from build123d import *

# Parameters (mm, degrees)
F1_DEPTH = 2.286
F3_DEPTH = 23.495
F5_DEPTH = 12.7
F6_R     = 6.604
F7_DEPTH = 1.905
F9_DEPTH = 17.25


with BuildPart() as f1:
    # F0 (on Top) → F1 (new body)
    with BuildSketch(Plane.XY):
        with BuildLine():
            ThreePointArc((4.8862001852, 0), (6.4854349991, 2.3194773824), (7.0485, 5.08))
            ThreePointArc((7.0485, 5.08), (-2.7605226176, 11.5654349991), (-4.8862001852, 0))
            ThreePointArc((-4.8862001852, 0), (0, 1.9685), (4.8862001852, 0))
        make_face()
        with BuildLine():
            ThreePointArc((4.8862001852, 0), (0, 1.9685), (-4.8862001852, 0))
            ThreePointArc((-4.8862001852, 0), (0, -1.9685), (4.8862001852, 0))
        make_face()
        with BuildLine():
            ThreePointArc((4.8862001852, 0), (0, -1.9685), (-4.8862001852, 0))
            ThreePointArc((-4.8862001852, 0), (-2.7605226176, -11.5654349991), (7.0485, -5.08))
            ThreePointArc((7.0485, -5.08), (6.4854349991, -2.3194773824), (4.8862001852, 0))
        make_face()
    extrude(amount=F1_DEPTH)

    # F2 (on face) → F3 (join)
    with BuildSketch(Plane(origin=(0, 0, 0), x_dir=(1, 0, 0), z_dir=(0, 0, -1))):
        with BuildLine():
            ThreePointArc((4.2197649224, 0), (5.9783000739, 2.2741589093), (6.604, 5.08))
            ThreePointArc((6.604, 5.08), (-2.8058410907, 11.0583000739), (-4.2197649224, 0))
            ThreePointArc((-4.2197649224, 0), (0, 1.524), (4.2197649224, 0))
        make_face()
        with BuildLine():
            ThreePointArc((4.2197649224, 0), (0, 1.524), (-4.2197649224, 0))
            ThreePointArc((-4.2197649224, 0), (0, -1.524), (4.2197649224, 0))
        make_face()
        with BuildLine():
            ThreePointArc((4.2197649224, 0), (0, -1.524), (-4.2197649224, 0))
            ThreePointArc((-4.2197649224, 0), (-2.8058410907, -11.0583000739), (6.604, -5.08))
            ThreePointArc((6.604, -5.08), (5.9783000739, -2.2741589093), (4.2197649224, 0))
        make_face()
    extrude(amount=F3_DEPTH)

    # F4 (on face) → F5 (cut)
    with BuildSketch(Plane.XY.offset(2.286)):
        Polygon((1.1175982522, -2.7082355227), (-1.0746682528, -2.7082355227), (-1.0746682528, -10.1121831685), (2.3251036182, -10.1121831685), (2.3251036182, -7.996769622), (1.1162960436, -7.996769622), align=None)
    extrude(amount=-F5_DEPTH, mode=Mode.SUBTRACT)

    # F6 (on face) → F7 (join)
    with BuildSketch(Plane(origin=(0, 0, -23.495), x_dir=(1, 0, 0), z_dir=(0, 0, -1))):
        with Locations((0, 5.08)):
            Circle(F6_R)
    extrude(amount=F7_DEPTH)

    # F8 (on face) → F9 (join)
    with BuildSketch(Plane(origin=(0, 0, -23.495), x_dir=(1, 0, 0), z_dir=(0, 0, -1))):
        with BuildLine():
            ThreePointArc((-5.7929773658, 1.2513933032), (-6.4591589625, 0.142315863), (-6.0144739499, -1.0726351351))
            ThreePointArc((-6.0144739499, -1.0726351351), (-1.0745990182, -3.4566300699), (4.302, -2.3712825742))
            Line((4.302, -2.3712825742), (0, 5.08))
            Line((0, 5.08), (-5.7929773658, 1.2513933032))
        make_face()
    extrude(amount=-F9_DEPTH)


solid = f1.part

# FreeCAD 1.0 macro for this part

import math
import FreeCAD as App
import Part
import Sketcher
from FreeCAD import Vector
Q = App.Units.Quantity


def add_polygon(sketch, points):
    """Adds a closed chain of lines whose ends are joined by coincident constraints."""
    first, n = sketch.GeometryCount, len(points)
    for a, b in zip(points, points[1:] + points[:1]):
        sketch.addGeometry(Part.LineSegment(App.Vector(*a, 0), App.Vector(*b, 0)), False)
    for i in range(n):
        sketch.addConstraint(Sketcher.Constraint("Coincident", first + i, 2, first + (i + 1) % n, 1))

doc = App.newDocument("Part")
body = doc.addObject("PartDesign::Body", "Body")

# Sketch on XY plane
sketch1 = body.newObject("Sketcher::SketchObject", "Sketch")
sketch1.AttachmentSupport = (doc.getObject("XY_Plane"), [""])
sketch1.MapMode = "FlatFace"
sketch1.addGeometry([
    Part.ArcOfCircle(Part.Circle(Vector(0, 5, 0), Vector(0, 0, 1), 7), math.radians(-46), math.radians(0)),
    Part.ArcOfCircle(Part.Circle(Vector(0, 5, 0), Vector(0, 0, 1), 7), math.radians(0), math.radians(226)),
    Part.ArcOfCircle(Part.Circle(Vector(0, -5, 0), Vector(0, 0, 1), 7), math.radians(134), math.radians(360)),
    Part.ArcOfCircle(Part.Circle(Vector(0, -5, 0), Vector(0, 0, 1), 7), math.radians(0), math.radians(46)),
], False)
sketch1.addConstraint([
    Sketcher.Constraint("Tangent", 0, 2, 1, 1),
    Sketcher.Constraint("Coincident", 1, 2, 2, 1),
    Sketcher.Constraint("Tangent", 2, 2, 3, 1),
    Sketcher.Constraint("Coincident", 3, 2, 0, 1),
    Sketcher.Constraint("Equal", 0, 1),
    Sketcher.Constraint("Equal", 1, 2),
    Sketcher.Constraint("Equal", 2, 3),
    Sketcher.Constraint("Symmetric", 0, 3, 2, 3, -1, 1),
    Sketcher.Constraint("Symmetric", 0, 2, 2, 2, -1),
    Sketcher.Constraint("Horizontal", 1, 3, 0, 2),
    Sketcher.Constraint("DistanceY", -1, 1, 0, 3, Q("0.2 in")),
    Sketcher.Constraint("Radius", 0, Q("0.2775 in")),
])
pad1 = body.newObject("PartDesign::Pad", "Pad")
pad1.Profile = sketch1
pad1.Length = Q("0.09 in")

# Sketch on XY plane
sketch2 = body.newObject("Sketcher::SketchObject", "Sketch001")
sketch2.AttachmentSupport = (doc.getObject("XY_Plane"), [""])
sketch2.MapMode = "FlatFace"
sketch2.addGeometry([
    Part.ArcOfCircle(Part.Circle(Vector(0, -5, 0), Vector(0, 0, 1), 7), math.radians(0), math.radians(50)),
    Part.ArcOfCircle(Part.Circle(Vector(0, -5, 0), Vector(0, 0, 1), 7), math.radians(130), math.radians(360)),
    Part.ArcOfCircle(Part.Circle(Vector(0, 5, 0), Vector(0, 0, 1), 7), math.radians(0), math.radians(230)),
    Part.ArcOfCircle(Part.Circle(Vector(0, 5, 0), Vector(0, 0, 1), 7), math.radians(-50), math.radians(0)),
], False)
sketch2.addConstraint([
    Sketcher.Constraint("Tangent", 0, 1, 1, 2),
    Sketcher.Constraint("Coincident", 1, 1, 2, 2),
    Sketcher.Constraint("Tangent", 2, 1, 3, 2),
    Sketcher.Constraint("Coincident", 3, 1, 0, 2),
    Sketcher.Constraint("Equal", 0, 1),
    Sketcher.Constraint("Equal", 1, 2),
    Sketcher.Constraint("Equal", 2, 3),
    Sketcher.Constraint("Symmetric", 0, 3, 2, 3, -1, 1),
    Sketcher.Constraint("Symmetric", 0, 1, 2, 1, -1),
    Sketcher.Constraint("Horizontal", 1, 3, 0, 1),
    Sketcher.Constraint("Radius", 0, Q("0.26 in")),
    Sketcher.Constraint("DistanceY", 0, 3, -1, 1, Q("0.2 in")),
])
pad2 = body.newObject("PartDesign::Pad", "Pad001")
pad2.Profile = sketch2
pad2.Length = Q("0.925 in")
pad2.Reversed = True

# Sketch on XY plane
sketch3 = body.newObject("Sketcher::SketchObject", "Sketch002")
sketch3.AttachmentSupport = (doc.getObject("XY_Plane"), [""])
sketch3.MapMode = "FlatFace"
sketch3.AttachmentOffset = App.Placement(Vector(0, 0, 0.09 * 25.4), App.Rotation())
add_polygon(sketch3, [(1.1, -2.7), (-1.1, -2.7), (-1.1, -10.1), (2.3, -10.1), (2.3, -8), (1.1, -8)])  # lines 0-5
sketch3.addConstraint([
    Sketcher.Constraint("Horizontal", 0),
    Sketcher.Constraint("Vertical", 1),
    Sketcher.Constraint("Horizontal", 2),
    Sketcher.Constraint("Vertical", 3),
    Sketcher.Constraint("Horizontal", 4),
    Sketcher.Constraint("DistanceX", -1, 1, 5, 2, Q("0.0439999 in")),
    Sketcher.Constraint("DistanceX", 2, 1, 2, 2, 3.399772),
    Sketcher.Constraint("DistanceX", 0, 2, 0, 1, 2.192267),
    Sketcher.Constraint("DistanceX", 4, 2, 4, 1, 1.208808),
    Sketcher.Constraint("DistanceY", 1, 2, 1, 1, 7.403948),
    Sketcher.Constraint("DistanceY", 3, 1, 3, 2, 2.115414),
    Sketcher.Constraint("DistanceY", 3, 2, -1, 1, 7.99677),
])
pocket1 = body.newObject("PartDesign::Pocket", "Pocket")
pocket1.Profile = sketch3
pocket1.Length = Q("0.5 in")

# Sketch on XY plane
sketch4 = body.newObject("Sketcher::SketchObject", "Sketch003")
sketch4.AttachmentSupport = (doc.getObject("XY_Plane"), [""])
sketch4.MapMode = "FlatFace"
sketch4.AttachmentOffset = App.Placement(Vector(0, 0, -0.925 * 25.4), App.Rotation())
sketch4.addGeometry(Part.Circle(Vector(0, -5, 0), Vector(0, 0, 1), 7), False)
sketch4.addConstraint([
    Sketcher.Constraint("PointOnObject", 0, 3, -2),
    Sketcher.Constraint("Diameter", 0, Q("0.52 in")),
    Sketcher.Constraint("DistanceY", 0, 3, -1, 1, Q("0.2 in")),
])
pad3 = body.newObject("PartDesign::Pad", "Pad002")
pad3.Profile = sketch4
pad3.Length = Q("0.075 in")
pad3.Reversed = True

# Sketch on XY plane
sketch5 = body.newObject("Sketcher::SketchObject", "Sketch004")
sketch5.AttachmentSupport = (doc.getObject("XY_Plane"), [""])
sketch5.MapMode = "FlatFace"
sketch5.AttachmentOffset = App.Placement(Vector(0, 0, -0.925 * 25.4), App.Rotation())
sketch5.addGeometry([
    Part.ArcOfCircle(Part.Circle(Vector(-5, 0, 0), Vector(0, 0, 1), 1.5), math.radians(134), math.radians(237)),
    Part.ArcOfCircle(Part.Circle(Vector(0, -5.1, 0), Vector(0, 0, 1), 8.6), math.radians(60), math.radians(134)),
    Part.LineSegment(Vector(4.3, 2.4, 0), Vector(0, -5.1, 0)),
    Part.LineSegment(Vector(0, -5.1, 0), Vector(-5.8, -1.3, 0)),
], False)
sketch5.addConstraint([
    Sketcher.Constraint("Tangent", 0, 1, 1, 2),
    Sketcher.Constraint("Coincident", 1, 1, 2, 1),
    Sketcher.Constraint("Coincident", 2, 2, 3, 1),
    Sketcher.Constraint("Tangent", 3, 2, 0, 2),
    Sketcher.Constraint("Coincident", 2, 2, 1, 3),
    Sketcher.Constraint("PointOnObject", 0, 3, -1),
    Sketcher.Constraint("PointOnObject", 1, 3, -2),
    Sketcher.Constraint("Angle", 2, Q("-120 deg")),
    Sketcher.Constraint("DistanceY", 1, 3, -1, 1, Q("0.2 in")),
    Sketcher.Constraint("Radius", 0, 1.5),
    Sketcher.Constraint("Radius", 1, 8.604),
])
pad4 = body.newObject("PartDesign::Pad", "Pad003")
pad4.Profile = sketch5
pad4.Length = 17.25

doc.recompute()
